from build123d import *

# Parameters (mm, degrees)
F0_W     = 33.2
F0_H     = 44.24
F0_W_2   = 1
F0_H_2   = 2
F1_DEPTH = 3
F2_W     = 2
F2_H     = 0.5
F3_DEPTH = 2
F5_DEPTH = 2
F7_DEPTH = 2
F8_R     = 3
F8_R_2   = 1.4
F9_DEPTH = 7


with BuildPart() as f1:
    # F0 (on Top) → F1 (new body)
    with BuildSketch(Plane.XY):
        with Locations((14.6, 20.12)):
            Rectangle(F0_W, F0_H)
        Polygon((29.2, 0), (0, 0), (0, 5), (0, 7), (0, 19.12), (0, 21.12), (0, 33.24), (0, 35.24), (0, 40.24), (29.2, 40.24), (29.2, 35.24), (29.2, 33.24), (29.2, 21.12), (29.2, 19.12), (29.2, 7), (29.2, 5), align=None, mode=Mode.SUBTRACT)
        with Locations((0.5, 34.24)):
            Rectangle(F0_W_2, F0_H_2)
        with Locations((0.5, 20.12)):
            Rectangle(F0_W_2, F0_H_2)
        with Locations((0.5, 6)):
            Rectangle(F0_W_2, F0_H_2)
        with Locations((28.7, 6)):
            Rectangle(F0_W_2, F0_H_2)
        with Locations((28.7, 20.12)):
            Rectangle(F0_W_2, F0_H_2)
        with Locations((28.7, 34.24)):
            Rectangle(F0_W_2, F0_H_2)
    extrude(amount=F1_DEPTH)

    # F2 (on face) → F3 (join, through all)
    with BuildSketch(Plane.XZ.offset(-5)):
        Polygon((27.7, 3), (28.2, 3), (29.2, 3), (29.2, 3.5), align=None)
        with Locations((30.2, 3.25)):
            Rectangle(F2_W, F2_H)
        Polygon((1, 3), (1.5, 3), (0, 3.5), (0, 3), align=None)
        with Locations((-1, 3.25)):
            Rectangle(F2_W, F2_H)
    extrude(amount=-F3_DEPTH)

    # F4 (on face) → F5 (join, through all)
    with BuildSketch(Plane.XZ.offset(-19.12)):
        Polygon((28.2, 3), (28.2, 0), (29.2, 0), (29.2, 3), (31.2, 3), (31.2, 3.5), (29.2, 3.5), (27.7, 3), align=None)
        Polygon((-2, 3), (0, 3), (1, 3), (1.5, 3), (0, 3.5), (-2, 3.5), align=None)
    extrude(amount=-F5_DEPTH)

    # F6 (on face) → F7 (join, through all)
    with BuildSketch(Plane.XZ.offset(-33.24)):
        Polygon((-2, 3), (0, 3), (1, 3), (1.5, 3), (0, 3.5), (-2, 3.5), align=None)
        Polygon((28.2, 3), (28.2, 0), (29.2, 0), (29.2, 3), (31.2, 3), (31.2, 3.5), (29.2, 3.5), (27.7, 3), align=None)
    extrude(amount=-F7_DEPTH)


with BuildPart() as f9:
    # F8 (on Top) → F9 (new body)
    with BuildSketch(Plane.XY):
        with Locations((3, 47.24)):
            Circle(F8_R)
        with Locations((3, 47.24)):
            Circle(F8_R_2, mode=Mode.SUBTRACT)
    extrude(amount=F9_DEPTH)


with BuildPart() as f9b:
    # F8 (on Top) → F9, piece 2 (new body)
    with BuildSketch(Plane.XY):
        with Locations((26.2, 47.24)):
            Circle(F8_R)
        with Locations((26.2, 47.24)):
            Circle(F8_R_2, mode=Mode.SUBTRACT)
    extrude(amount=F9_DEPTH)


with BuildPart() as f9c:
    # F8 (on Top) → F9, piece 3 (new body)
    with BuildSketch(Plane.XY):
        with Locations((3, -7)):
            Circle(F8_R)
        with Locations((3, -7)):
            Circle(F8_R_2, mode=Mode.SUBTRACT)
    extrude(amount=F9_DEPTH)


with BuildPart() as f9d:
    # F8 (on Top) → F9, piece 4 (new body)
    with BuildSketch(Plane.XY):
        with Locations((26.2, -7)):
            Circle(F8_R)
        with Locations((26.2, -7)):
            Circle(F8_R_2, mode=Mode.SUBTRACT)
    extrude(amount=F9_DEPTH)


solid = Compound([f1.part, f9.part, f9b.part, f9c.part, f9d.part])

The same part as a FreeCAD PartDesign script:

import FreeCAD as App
import Part
import Sketcher

V = App.Vector

doc = App.newDocument("Part")
body = doc.addObject("PartDesign::Body", "Body")

# Sketch on XY plane
sketch1 = body.newObject("Sketcher::SketchObject", "Sketch")
sketch1.AttachmentSupport = (doc.getObject("XY_Plane"), [""])
sketch1.MapMode = "FlatFace"
sketch1.addGeometry(Part.LineSegment(V(-2, 42.2, 0), V(-2, -2, 0)), False)
sketch1.addGeometry(Part.LineSegment(V(-2, -2, 0), V(31.2, -2, 0)), False)
sketch1.addGeometry(Part.LineSegment(V(31.2, -2, 0), V(31.2, 42.2, 0)), False)
sketch1.addGeometry(Part.LineSegment(V(31.2, 42.2, 0), V(-2, 42.2, 0)), False)
sketch1.addGeometry(Part.LineSegment(V(29.2, 40.2, 0), V(29.2, 35.2, 0)), False)
sketch1.addGeometry(Part.LineSegment(V(29.2, 35.2, 0), V(28.2, 35.2, 0)), False)
sketch1.addGeometry(Part.LineSegment(V(28.2, 35.2, 0), V(28.2, 33.2, 0)), False)
sketch1.addGeometry(Part.LineSegment(V(28.2, 33.2, 0), V(29.2, 33.2, 0)), False)
sketch1.addGeometry(Part.LineSegment(V(29.2, 33.2, 0), V(29.2, 21.1, 0)), False)
sketch1.addGeometry(Part.LineSegment(V(29.2, 21.1, 0), V(28.2, 21.1, 0)), False)
sketch1.addGeometry(Part.LineSegment(V(28.2, 21.1, 0), V(28.2, 19.1, 0)), False)
sketch1.addGeometry(Part.LineSegment(V(28.2, 19.1, 0), V(29.2, 19.1, 0)), False)
sketch1.addGeometry(Part.LineSegment(V(29.2, 19.1, 0), V(29.2, 7, 0)), False)
sketch1.addGeometry(Part.LineSegment(V(29.2, 7, 0), V(28.2, 7, 0)), False)
sketch1.addGeometry(Part.LineSegment(V(28.2, 7, 0), V(28.2, 5, 0)), False)
sketch1.addGeometry(Part.LineSegment(V(28.2, 5, 0), V(29.2, 5, 0)), False)
sketch1.addGeometry(Part.LineSegment(V(29.2, 5, 0), V(29.2, 0, 0)), False)
sketch1.addGeometry(Part.LineSegment(V(29.2, 0, 0), V(0, 0, 0)), False)
sketch1.addGeometry(Part.LineSegment(V(0, 0, 0), V(0, 5, 0)), False)
sketch1.addGeometry(Part.LineSegment(V(0, 5, 0), V(1, 5, 0)), False)
sketch1.addGeometry(Part.LineSegment(V(1, 5, 0), V(1, 7, 0)), False)
sketch1.addGeometry(Part.LineSegment(V(1, 7, 0), V(0, 7, 0)), False)
sketch1.addGeometry(Part.LineSegment(V(0, 7, 0), V(0, 19.1, 0)), False)
sketch1.addGeometry(Part.LineSegment(V(0, 19.1, 0), V(1, 19.1, 0)), False)
sketch1.addGeometry(Part.LineSegment(V(1, 19.1, 0), V(1, 21.1, 0)), False)
sketch1.addGeometry(Part.LineSegment(V(1, 21.1, 0), V(0, 21.1, 0)), False)
sketch1.addGeometry(Part.LineSegment(V(0, 21.1, 0), V(0, 33.2, 0)), False)
sketch1.addGeometry(Part.LineSegment(V(0, 33.2, 0), V(1, 33.2, 0)), False)
sketch1.addGeometry(Part.LineSegment(V(1, 33.2, 0), V(1, 35.2, 0)), False)
sketch1.addGeometry(Part.LineSegment(V(1, 35.2, 0), V(0, 35.2, 0)), False)
sketch1.addGeometry(Part.LineSegment(V(0, 35.2, 0), V(0, 40.2, 0)), False)
sketch1.addGeometry(Part.LineSegment(V(0, 40.2, 0), V(29.2, 40.2, 0)), False)
sketch1.addConstraint(Sketcher.Constraint("Coincident", 0, 2, 1, 1))
sketch1.addConstraint(Sketcher.Constraint("Coincident", 1, 2, 2, 1))
sketch1.addConstraint(Sketcher.Constraint("Coincident", 2, 2, 3, 1))
sketch1.addConstraint(Sketcher.Constraint("Coincident", 3, 2, 0, 1))
sketch1.addConstraint(Sketcher.Constraint("Coincident", 4, 2, 5, 1))
sketch1.addConstraint(Sketcher.Constraint("Coincident", 5, 2, 6, 1))
sketch1.addConstraint(Sketcher.Constraint("Coincident", 6, 2, 7, 1))
sketch1.addConstraint(Sketcher.Constraint("Coincident", 7, 2, 8, 1))
sketch1.addConstraint(Sketcher.Constraint("Coincident", 8, 2, 9, 1))
sketch1.addConstraint(Sketcher.Constraint("Coincident", 9, 2, 10, 1))
sketch1.addConstraint(Sketcher.Constraint("Coincident", 10, 2, 11, 1))
sketch1.addConstraint(Sketcher.Constraint("Coincident", 11, 2, 12, 1))
sketch1.addConstraint(Sketcher.Constraint("Coincident", 12, 2, 13, 1))
sketch1.addConstraint(Sketcher.Constraint("Coincident", 13, 2, 14, 1))
sketch1.addConstraint(Sketcher.Constraint("Coincident", 14, 2, 15, 1))
sketch1.addConstraint(Sketcher.Constraint("Coincident", 15, 2, 16, 1))
sketch1.addConstraint(Sketcher.Constraint("Coincident", 16, 2, 17, 1))
sketch1.addConstraint(Sketcher.Constraint("Coincident", 17, 2, 18, 1))
sketch1.addConstraint(Sketcher.Constraint("Coincident", 18, 2, 19, 1))
sketch1.addConstraint(Sketcher.Constraint("Coincident", 19, 2, 20, 1))
sketch1.addConstraint(Sketcher.Constraint("Coincident", 20, 2, 21, 1))
sketch1.addConstraint(Sketcher.Constraint("Coincident", 21, 2, 22, 1))
sketch1.addConstraint(Sketcher.Constraint("Coincident", 22, 2, 23, 1))
sketch1.addConstraint(Sketcher.Constraint("Coincident", 23, 2, 24, 1))
sketch1.addConstraint(Sketcher.Constraint("Coincident", 24, 2, 25, 1))
sketch1.addConstraint(Sketcher.Constraint("Coincident", 25, 2, 26, 1))
sketch1.addConstraint(Sketcher.Constraint("Coincident", 26, 2, 27, 1))
sketch1.addConstraint(Sketcher.Constraint("Coincident", 27, 2, 28, 1))
sketch1.addConstraint(Sketcher.Constraint("Coincident", 28, 2, 29, 1))
sketch1.addConstraint(Sketcher.Constraint("Coincident", 29, 2, 30, 1))
sketch1.addConstraint(Sketcher.Constraint("Coincident", 30, 2, 31, 1))
sketch1.addConstraint(Sketcher.Constraint("Coincident", 31, 2, 4, 1))
sketch1.addConstraint(Sketcher.Constraint("Vertical", 0))
sketch1.addConstraint(Sketcher.Constraint("Horizontal", 1))
sketch1.addConstraint(Sketcher.Constraint("Vertical", 2))
sketch1.addConstraint(Sketcher.Constraint("Horizontal", 3))
sketch1.addConstraint(Sketcher.Constraint("Vertical", 4))
sketch1.addConstraint(Sketcher.Constraint("Horizontal", 5))
sketch1.addConstraint(Sketcher.Constraint("Vertical", 6))
sketch1.addConstraint(Sketcher.Constraint("Horizontal", 7))
sketch1.addConstraint(Sketcher.Constraint("Vertical", 8))
sketch1.addConstraint(Sketcher.Constraint("Horizontal", 9))
sketch1.addConstraint(Sketcher.Constraint("Vertical", 10))
sketch1.addConstraint(Sketcher.Constraint("Horizontal", 11))
sketch1.addConstraint(Sketcher.Constraint("Vertical", 12))
sketch1.addConstraint(Sketcher.Constraint("Horizontal", 13))
sketch1.addConstraint(Sketcher.Constraint("Vertical", 14))
sketch1.addConstraint(Sketcher.Constraint("Horizontal", 15))
sketch1.addConstraint(Sketcher.Constraint("Vertical", 16))
sketch1.addConstraint(Sketcher.Constraint("Horizontal", 17))
sketch1.addConstraint(Sketcher.Constraint("Vertical", 18))
sketch1.addConstraint(Sketcher.Constraint("Horizontal", 19))
sketch1.addConstraint(Sketcher.Constraint("Vertical", 20))
sketch1.addConstraint(Sketcher.Constraint("Horizontal", 21))
sketch1.addConstraint(Sketcher.Constraint("Vertical", 22))
sketch1.addConstraint(Sketcher.Constraint("Horizontal", 23))
sketch1.addConstraint(Sketcher.Constraint("Vertical", 24))
sketch1.addConstraint(Sketcher.Constraint("Horizontal", 25))
sketch1.addConstraint(Sketcher.Constraint("Vertical", 26))
sketch1.addConstraint(Sketcher.Constraint("Horizontal", 27))
sketch1.addConstraint(Sketcher.Constraint("Vertical", 28))
sketch1.addConstraint(Sketcher.Constraint("Horizontal", 29))
sketch1.addConstraint(Sketcher.Constraint("Vertical", 30))
sketch1.addConstraint(Sketcher.Constraint("Horizontal", 31))
sketch1.addConstraint(Sketcher.Constraint("Coincident", 17, 2, -1, 1))
sketch1.addConstraint(Sketcher.Constraint("PointOnObject", 21, 2, -2))
sketch1.addConstraint(Sketcher.Constraint("PointOnObject", 25, 2, -2))
sketch1.addConstraint(Sketcher.Constraint("PointOnObject", 29, 2, -2))
sketch1.addConstraint(Sketcher.Constraint("Horizontal", 15, 2, 18, 2))
sketch1.addConstraint(Sketcher.Constraint("Horizontal", 13, 2, 20, 2))
sketch1.addConstraint(Sketcher.Constraint("Horizontal", 11, 2, 22, 2))
sketch1.addConstraint(Sketcher.Constraint("Horizontal", 9, 2, 24, 2))
sketch1.addConstraint(Sketcher.Constraint("Horizontal", 7, 2, 26, 2))
sketch1.addConstraint(Sketcher.Constraint("Horizontal", 5, 2, 28, 2))
sketch1.addConstraint(Sketcher.Constraint("Vertical", 4, 2, 7, 2))
sketch1.addConstraint(Sketcher.Constraint("Vertical", 6, 2, 9, 2))
sketch1.addConstraint(Sketcher.Constraint("Vertical", 8, 2, 11, 2))
sketch1.addConstraint(Sketcher.Constraint("Vertical", 10, 2, 13, 2))
sketch1.addConstraint(Sketcher.Constraint("Vertical", 12, 2, 15, 2))
sketch1.addConstraint(Sketcher.Constraint("Vertical", 20, 2, 23, 2))
sketch1.addConstraint(Sketcher.Constraint("Vertical", 24, 2, 27, 2))
sketch1.addConstraint(Sketcher.Constraint("Equal", 15, 19))
sketch1.addConstraint(Sketcher.Constraint("Equal", 6, 10))
sketch1.addConstraint(Sketcher.Constraint("Equal", 8, 12))
sketch1.addConstraint(Sketcher.Constraint("Equal", 10, 14))
sketch1.addConstraint(Sketcher.Constraint("Equal", 4, 16))
sketch1.addConstraint(Sketcher.Constraint("DistanceX", 5, 2, 5, 1, 1.0))
sketch1.addConstraint(Sketcher.Constraint("DistanceY", 4, 2, 4, 1, 5.0))
sketch1.addConstraint(Sketcher.Constraint("DistanceY", 6, 2, 6, 1, 2.0))
sketch1.addConstraint(Sketcher.Constraint("DistanceX", 1, 1, 1, 2, 33.2))
sketch1.addConstraint(Sketcher.Constraint("DistanceX", 17, 2, 17, 1, 29.2))
sketch1.addConstraint(Sketcher.Constraint("DistanceX", 0, 2, -1, 1, 2.0))
sketch1.addConstraint(Sketcher.Constraint("DistanceY", 0, 2, -1, 1, 2.0))
sketch1.addConstraint(Sketcher.Constraint("DistanceY", 4, 2, 2, 2, 7.0))
sketch1.addConstraint(Sketcher.Constraint("DistanceY", 0, 2, 0, 1, 44.24))
pad1 = body.newObject("PartDesign::Pad", "Pad")
pad1.Profile = sketch1
pad1.Length = 3

# Sketch on XZ plane
sketch2 = body.newObject("Sketcher::SketchObject", "Sketch001")
sketch2.AttachmentSupport = (doc.getObject("XZ_Plane"), [""])
sketch2.MapMode = "FlatFace"
sketch2.AttachmentOffset = App.Placement(V(0, 0, -5), App.Rotation())
sketch2.addGeometry(Part.LineSegment(V(27.7, 3, 0), V(31.2, 3, 0)), False)
sketch2.addGeometry(Part.LineSegment(V(31.2, 3, 0), V(31.2, 3.5, 0)), False)
sketch2.addGeometry(Part.LineSegment(V(31.2, 3.5, 0), V(29.2, 3.5, 0)), False)
sketch2.addGeometry(Part.LineSegment(V(29.2, 3.5, 0), V(27.7, 3, 0)), False)
sketch2.addGeometry(Part.LineSegment(V(1.5, 3, 0), V(0, 3.5, 0)), False)
sketch2.addGeometry(Part.LineSegment(V(0, 3.5, 0), V(-2, 3.5, 0)), False)
sketch2.addGeometry(Part.LineSegment(V(-2, 3.5, 0), V(-2, 3, 0)), False)
sketch2.addGeometry(Part.LineSegment(V(-2, 3, 0), V(1.5, 3, 0)), False)
sketch2.addConstraint(Sketcher.Constraint("Coincident", 0, 2, 1, 1))
sketch2.addConstraint(Sketcher.Constraint("Coincident", 1, 2, 2, 1))
sketch2.addConstraint(Sketcher.Constraint("Coincident", 2, 2, 3, 1))
sketch2.addConstraint(Sketcher.Constraint("Coincident", 3, 2, 0, 1))
sketch2.addConstraint(Sketcher.Constraint("Coincident", 4, 2, 5, 1))
sketch2.addConstraint(Sketcher.Constraint("Coincident", 5, 2, 6, 1))
sketch2.addConstraint(Sketcher.Constraint("Coincident", 6, 2, 7, 1))
sketch2.addConstraint(Sketcher.Constraint("Coincident", 7, 2, 4, 1))
sketch2.addConstraint(Sketcher.Constraint("Horizontal", 0))
sketch2.addConstraint(Sketcher.Constraint("Vertical", 1))
sketch2.addConstraint(Sketcher.Constraint("Horizontal", 2))
sketch2.addConstraint(Sketcher.Constraint("Horizontal", 5))
sketch2.addConstraint(Sketcher.Constraint("Vertical", 6))
sketch2.addConstraint(Sketcher.Constraint("Horizontal", 7))
sketch2.addConstraint(Sketcher.Constraint("PointOnObject", 4, 2, -2))
sketch2.addConstraint(Sketcher.Constraint("Horizontal", 2, 2, 4, 2))
sketch2.addConstraint(Sketcher.Constraint("Horizontal", 3, 2, 6, 2))
sketch2.addConstraint(Sketcher.Constraint("Equal", 2, 5))
sketch2.addConstraint(Sketcher.Constraint("Equal", 0, 7))
sketch2.addConstraint(Sketcher.Constraint("DistanceX", 2, 2, 2, 1, 2.0))
sketch2.addConstraint(Sketcher.Constraint("DistanceX", 0, 1, 0, 2, 3.5))
sketch2.addConstraint(Sketcher.Constraint("DistanceY", 1, 1, 1, 2, 0.5))
sketch2.addConstraint(Sketcher.Constraint("DistanceY", -1, 1, 0, 2, 3.0))
sketch2.addConstraint(Sketcher.Constraint("DistanceX", -1, 1, 0, 2, 31.2))
pad2 = body.newObject("PartDesign::Pad", "Pad001")
pad2.Profile = sketch2
pad2.Length = 2
pad2.Reversed = True

# Sketch on XZ plane
sketch3 = body.newObject("Sketcher::SketchObject", "Sketch002")
sketch3.AttachmentSupport = (doc.getObject("XZ_Plane"), [""])
sketch3.MapMode = "FlatFace"
sketch3.AttachmentOffset = App.Placement(V(0, 0, -19.12), App.Rotation())
sketch3.addGeometry(Part.LineSegment(V(28.2, 3, 0), V(28.2, 0, 0)), False)
sketch3.addGeometry(Part.LineSegment(V(28.2, 0, 0), V(29.2, 0, 0)), False)
sketch3.addGeometry(Part.LineSegment(V(29.2, 0, 0), V(29.2, 3, 0)), False)
sketch3.addGeometry(Part.LineSegment(V(29.2, 3, 0), V(31.2, 3, 0)), False)
sketch3.addGeometry(Part.LineSegment(V(31.2, 3, 0), V(31.2, 3.5, 0)), False)
sketch3.addGeometry(Part.LineSegment(V(31.2, 3.5, 0), V(29.2, 3.5, 0)), False)
sketch3.addGeometry(Part.LineSegment(V(29.2, 3.5, 0), V(27.7, 3, 0)), False)
sketch3.addGeometry(Part.LineSegment(V(27.7, 3, 0), V(28.2, 3, 0)), False)
sketch3.addGeometry(Part.LineSegment(V(-2, 3, 0), V(1.5, 3, 0)), False)
sketch3.addGeometry(Part.LineSegment(V(1.5, 3, 0), V(0, 3.5, 0)), False)
sketch3.addGeometry(Part.LineSegment(V(0, 3.5, 0), V(-2, 3.5, 0)), False)
sketch3.addGeometry(Part.LineSegment(V(-2, 3.5, 0), V(-2, 3, 0)), False)
sketch3.addConstraint(Sketcher.Constraint("Coincident", 0, 2, 1, 1))
sketch3.addConstraint(Sketcher.Constraint("Coincident", 1, 2, 2, 1))
sketch3.addConstraint(Sketcher.Constraint("Coincident", 2, 2, 3, 1))
sketch3.addConstraint(Sketcher.Constraint("Coincident", 3, 2, 4, 1))
sketch3.addConstraint(Sketcher.Constraint("Coincident", 4, 2, 5, 1))
sketch3.addConstraint(Sketcher.Constraint("Coincident", 5, 2, 6, 1))
sketch3.addConstraint(Sketcher.Constraint("Coincident", 6, 2, 7, 1))
sketch3.addConstraint(Sketcher.Constraint("Coincident", 7, 2, 0, 1))
sketch3.addConstraint(Sketcher.Constraint("Coincident", 8, 2, 9, 1))
sketch3.addConstraint(Sketcher.Constraint("Coincident", 9, 2, 10, 1))
sketch3.addConstraint(Sketcher.Constraint("Coincident", 10, 2, 11, 1))
sketch3.addConstraint(Sketcher.Constraint("Coincident", 11, 2, 8, 1))
sketch3.addConstraint(Sketcher.Constraint("Vertical", 0))
sketch3.addConstraint(Sketcher.Constraint("Horizontal", 1))
sketch3.addConstraint(Sketcher.Constraint("Vertical", 2))
sketch3.addConstraint(Sketcher.Constraint("Horizontal", 3))
sketch3.addConstraint(Sketcher.Constraint("Vertical", 4))
sketch3.addConstraint(Sketcher.Constraint("Horizontal", 5))
sketch3.addConstraint(Sketcher.Constraint("Horizontal", 7))
sketch3.addConstraint(Sketcher.Constraint("Horizontal", 8))
sketch3.addConstraint(Sketcher.Constraint("Horizontal", 10))
sketch3.addConstraint(Sketcher.Constraint("Vertical", 11))
sketch3.addConstraint(Sketcher.Constraint("PointOnObject", 0, 2, -1))
sketch3.addConstraint(Sketcher.Constraint("PointOnObject", 9, 2, -2))
sketch3.addConstraint(Sketcher.Constraint("Horizontal", 3, 2, 6, 2))
sketch3.addConstraint(Sketcher.Constraint("Horizontal", 7, 2, 8, 2))
sketch3.addConstraint(Sketcher.Constraint("Horizontal", 5, 2, 9, 2))
sketch3.addConstraint(Sketcher.Constraint("Vertical", 2, 2, 5, 2))
sketch3.addConstraint(Sketcher.Constraint("Equal", 5, 10))
sketch3.addConstraint(Sketcher.Constraint("Equal", 7, 4))
sketch3.addConstraint(Sketcher.Constraint("Equal", 6, 9))
sketch3.addConstraint(Sketcher.Constraint("DistanceX", 1, 1, 1, 2, 1.0))
sketch3.addConstraint(Sketcher.Constraint("DistanceX", 3, 1, 3, 2, 2.0))
sketch3.addConstraint(Sketcher.Constraint("DistanceY", 0, 2, 0, 1, 3.0))
sketch3.addConstraint(Sketcher.Constraint("DistanceX", 7, 1, 7, 2, 0.5))
sketch3.addConstraint(Sketcher.Constraint("DistanceX", -1, 1, 0, 2, 28.2))
pad3 = body.newObject("PartDesign::Pad", "Pad002")
pad3.Profile = sketch3
pad3.Length = 2
pad3.Reversed = True

# Sketch on XZ plane
sketch4 = body.newObject("Sketcher::SketchObject", "Sketch003")
sketch4.AttachmentSupport = (doc.getObject("XZ_Plane"), [""])
sketch4.MapMode = "FlatFace"
sketch4.AttachmentOffset = App.Placement(V(0, 0, -33.24), App.Rotation())
sketch4.addGeometry(Part.LineSegment(V(-2, 3, 0), V(1.5, 3, 0)), False)
sketch4.addGeometry(Part.LineSegment(V(1.5, 3, 0), V(0, 3.5, 0)), False)
sketch4.addGeometry(Part.LineSegment(V(0, 3.5, 0), V(-2, 3.5, 0)), False)
sketch4.addGeometry(Part.LineSegment(V(-2, 3.5, 0), V(-2, 3, 0)), False)
sketch4.addGeometry(Part.LineSegment(V(28.2, 3, 0), V(28.2, 0, 0)), False)
sketch4.addGeometry(Part.LineSegment(V(28.2, 0, 0), V(29.2, 0, 0)), False)
sketch4.addGeometry(Part.LineSegment(V(29.2, 0, 0), V(29.2, 3, 0)), False)
sketch4.addGeometry(Part.LineSegment(V(29.2, 3, 0), V(31.2, 3, 0)), False)
sketch4.addGeometry(Part.LineSegment(V(31.2, 3, 0), V(31.2, 3.5, 0)), False)
sketch4.addGeometry(Part.LineSegment(V(31.2, 3.5, 0), V(29.2, 3.5, 0)), False)
sketch4.addGeometry(Part.LineSegment(V(29.2, 3.5, 0), V(27.7, 3, 0)), False)
sketch4.addGeometry(Part.LineSegment(V(27.7, 3, 0), V(28.2, 3, 0)), False)
sketch4.addConstraint(Sketcher.Constraint("Coincident", 0, 2, 1, 1))
sketch4.addConstraint(Sketcher.Constraint("Coincident", 1, 2, 2, 1))
sketch4.addConstraint(Sketcher.Constraint("Coincident", 2, 2, 3, 1))
sketch4.addConstraint(Sketcher.Constraint("Coincident", 3, 2, 0, 1))
sketch4.addConstraint(Sketcher.Constraint("Coincident", 4, 2, 5, 1))
sketch4.addConstraint(Sketcher.Constraint("Coincident", 5, 2, 6, 1))
sketch4.addConstraint(Sketcher.Constraint("Coincident", 6, 2, 7, 1))
sketch4.addConstraint(Sketcher.Constraint("Coincident", 7, 2, 8, 1))
sketch4.addConstraint(Sketcher.Constraint("Coincident", 8, 2, 9, 1))
sketch4.addConstraint(Sketcher.Constraint("Coincident", 9, 2, 10, 1))
sketch4.addConstraint(Sketcher.Constraint("Coincident", 10, 2, 11, 1))
sketch4.addConstraint(Sketcher.Constraint("Coincident", 11, 2, 4, 1))
sketch4.addConstraint(Sketcher.Constraint("Horizontal", 0))
sketch4.addConstraint(Sketcher.Constraint("Horizontal", 2))
sketch4.addConstraint(Sketcher.Constraint("Vertical", 3))
sketch4.addConstraint(Sketcher.Constraint("Vertical", 4))
sketch4.addConstraint(Sketcher.Constraint("Horizontal", 5))
sketch4.addConstraint(Sketcher.Constraint("Vertical", 6))
sketch4.addConstraint(Sketcher.Constraint("Horizontal", 7))
sketch4.addConstraint(Sketcher.Constraint("Vertical", 8))
sketch4.addConstraint(Sketcher.Constraint("Horizontal", 9))
sketch4.addConstraint(Sketcher.Constraint("Horizontal", 11))
sketch4.addConstraint(Sketcher.Constraint("PointOnObject", 1, 2, -2))
sketch4.addConstraint(Sketcher.Constraint("PointOnObject", 4, 2, -1))
sketch4.addConstraint(Sketcher.Constraint("Horizontal", 3, 2, 6, 2))
sketch4.addConstraint(Sketcher.Constraint("Horizontal", 2, 2, 8, 2))
sketch4.addConstraint(Sketcher.Constraint("Horizontal", 7, 2, 10, 2))
sketch4.addConstraint(Sketcher.Constraint("Vertical", 6, 2, 9, 2))
sketch4.addConstraint(Sketcher.Constraint("Equal", 2, 7))
sketch4.addConstraint(Sketcher.Constraint("Equal", 11, 3))
sketch4.addConstraint(Sketcher.Constraint("Equal", 1, 10))
sketch4.addConstraint(Sketcher.Constraint("DistanceX", 2, 2, 2, 1, 2.0))
sketch4.addConstraint(Sketcher.Constraint("DistanceX", 5, 1, 5, 2, 1.0))
sketch4.addConstraint(Sketcher.Constraint("DistanceY", 4, 2, 4, 1, 3.0))
sketch4.addConstraint(Sketcher.Constraint("DistanceX", 0, 1, 0, 2, 3.5))
sketch4.addConstraint(Sketcher.Constraint("DistanceX", -1, 1, 4, 2, 28.2))
pad4 = body.newObject("PartDesign::Pad", "Pad003")
pad4.Profile = sketch4
pad4.Length = 2
pad4.Reversed = True
body2 = doc.addObject("PartDesign::Body", "Body001")

# Sketch on XY plane
sketch5 = body2.newObject("Sketcher::SketchObject", "Sketch004")
sketch5.AttachmentSupport = (doc.getObject("XY_Plane001"), [""])
sketch5.MapMode = "FlatFace"
sketch5.addGeometry(Part.Circle(V(3, 47.2, 0), V(0, 0, 1), 3), False)
sketch5.addGeometry(Part.Circle(V(3, 47.2, 0), V(0, 0, 1), 1.4), False)
sketch5.addConstraint(Sketcher.Constraint("Coincident", 1, 3, 0, 3))
sketch5.addConstraint(Sketcher.Constraint("Diameter", 0, 6.0))
sketch5.addConstraint(Sketcher.Constraint("Diameter", 1, 2.8))
sketch5.addConstraint(Sketcher.Constraint("DistanceX", -1, 1, 0, 3, 3.0))
sketch5.addConstraint(Sketcher.Constraint("DistanceY", -1, 1, 0, 3, 47.24))
pad5 = body2.newObject("PartDesign::Pad", "Pad004")
pad5.Profile = sketch5
pad5.Length = 7
body3 = doc.addObject("PartDesign::Body", "Body002")

# Sketch on XY plane
sketch6 = body3.newObject("Sketcher::SketchObject", "Sketch005")
sketch6.AttachmentSupport = (doc.getObject("XY_Plane002"), [""])
sketch6.MapMode = "FlatFace"
sketch6.addGeometry(Part.Circle(V(26.2, 47.2, 0), V(0, 0, 1), 3), False)
sketch6.addGeometry(Part.Circle(V(26.2, 47.2, 0), V(0, 0, 1), 1.4), False)
sketch6.addConstraint(Sketcher.Constraint("Coincident", 1, 3, 0, 3))
sketch6.addConstraint(Sketcher.Constraint("Diameter", 0, 6.0))
sketch6.addConstraint(Sketcher.Constraint("Diameter", 1, 2.8))
sketch6.addConstraint(Sketcher.Constraint("DistanceX", -1, 1, 0, 3, 26.2))
sketch6.addConstraint(Sketcher.Constraint("DistanceY", -1, 1, 0, 3, 47.24))
pad6 = body3.newObject("PartDesign::Pad", "Pad005")
pad6.Profile = sketch6
pad6.Length = 7
body4 = doc.addObject("PartDesign::Body", "Body003")

# Sketch on XY plane
sketch7 = body4.newObject("Sketcher::SketchObject", "Sketch006")
sketch7.AttachmentSupport = (doc.getObject("XY_Plane003"), [""])
sketch7.MapMode = "FlatFace"
sketch7.addGeometry(Part.Circle(V(3, -7, 0), V(0, 0, 1), 3), False)
sketch7.addGeometry(Part.Circle(V(3, -7, 0), V(0, 0, 1), 1.4), False)
sketch7.addConstraint(Sketcher.Constraint("Coincident", 1, 3, 0, 3))
sketch7.addConstraint(Sketcher.Constraint("Diameter", 0, 6.0))
sketch7.addConstraint(Sketcher.Constraint("Diameter", 1, 2.8))
sketch7.addConstraint(Sketcher.Constraint("DistanceX", -1, 1, 0, 3, 3.0))
sketch7.addConstraint(Sketcher.Constraint("DistanceY", 0, 3, -1, 1, 7.0))
pad7 = body4.newObject("PartDesign::Pad", "Pad006")
pad7.Profile = sketch7
pad7.Length = 7
body5 = doc.addObject("PartDesign::Body", "Body004")

# Sketch on XY plane
sketch8 = body5.newObject("Sketcher::SketchObject", "Sketch007")
sketch8.AttachmentSupport = (doc.getObject("XY_Plane004"), [""])
sketch8.MapMode = "FlatFace"
sketch8.addGeometry(Part.Circle(V(26.2, -7, 0), V(0, 0, 1), 3), False)
sketch8.addGeometry(Part.Circle(V(26.2, -7, 0), V(0, 0, 1), 1.4), False)
sketch8.addConstraint(Sketcher.Constraint("Coincident", 1, 3, 0, 3))
sketch8.addConstraint(Sketcher.Constraint("Diameter", 0, 6.0))
sketch8.addConstraint(Sketcher.Constraint("Diameter", 1, 2.8))
sketch8.addConstraint(Sketcher.Constraint("DistanceY", 0, 3, -1, 1, 7.0))
sketch8.addConstraint(Sketcher.Constraint("DistanceX", -1, 1, 0, 3, 26.2))
pad8 = body5.newObject("PartDesign::Pad", "Pad007")
pad8.Profile = sketch8
pad8.Length = 7

doc.recompute()
